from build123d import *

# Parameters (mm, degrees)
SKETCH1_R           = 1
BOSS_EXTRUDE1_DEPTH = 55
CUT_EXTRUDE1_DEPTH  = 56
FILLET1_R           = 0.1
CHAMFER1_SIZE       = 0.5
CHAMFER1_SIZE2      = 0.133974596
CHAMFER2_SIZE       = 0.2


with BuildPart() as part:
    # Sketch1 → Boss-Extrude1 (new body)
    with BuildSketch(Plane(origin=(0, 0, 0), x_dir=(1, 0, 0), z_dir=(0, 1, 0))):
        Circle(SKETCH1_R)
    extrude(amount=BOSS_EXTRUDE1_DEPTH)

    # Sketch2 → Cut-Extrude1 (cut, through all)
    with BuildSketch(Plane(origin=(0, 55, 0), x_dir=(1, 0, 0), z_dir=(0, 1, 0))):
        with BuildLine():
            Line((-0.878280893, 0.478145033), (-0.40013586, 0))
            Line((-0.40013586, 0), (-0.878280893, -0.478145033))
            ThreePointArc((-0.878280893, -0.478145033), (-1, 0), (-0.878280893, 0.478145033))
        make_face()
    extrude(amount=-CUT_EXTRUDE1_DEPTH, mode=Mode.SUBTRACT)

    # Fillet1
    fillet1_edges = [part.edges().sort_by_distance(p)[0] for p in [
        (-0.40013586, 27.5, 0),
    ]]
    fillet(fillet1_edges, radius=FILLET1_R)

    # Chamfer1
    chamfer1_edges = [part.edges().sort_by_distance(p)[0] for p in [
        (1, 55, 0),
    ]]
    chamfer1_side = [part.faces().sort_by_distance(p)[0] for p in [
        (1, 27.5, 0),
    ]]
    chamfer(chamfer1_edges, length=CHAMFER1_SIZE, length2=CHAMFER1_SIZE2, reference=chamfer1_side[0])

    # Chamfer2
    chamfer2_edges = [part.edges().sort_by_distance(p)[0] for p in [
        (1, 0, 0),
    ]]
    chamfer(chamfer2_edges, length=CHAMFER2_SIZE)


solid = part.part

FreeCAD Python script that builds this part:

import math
import FreeCAD as App
import Part
import Sketcher
Q = App.Units.Quantity


def edges_at(feature, points):
    """Names of the edges that pass closest to the given points."""
    edges = feature.Shape.Edges
    near = lambda p: min(range(len(edges)), key=lambda i: edges[i].distToShape(Part.Vertex(*p))[0])
    return sorted({f"Edge{near(p) + 1}" for p in points})

doc = App.newDocument("Part")
body = doc.addObject("PartDesign::Body", "Body")

# Sketch on XZ plane
sketch1 = body.newObject("Sketcher::SketchObject", "Sketch")
sketch1.AttachmentSupport = (doc.getObject("XZ_Plane"), [""])
sketch1.MapMode = "FlatFace"
sketch1.addGeometry(Part.Circle(App.Vector(0, 0, 0), App.Vector(0, 0, 1), 1), False)
sketch1.addConstraint([
    Sketcher.Constraint("Coincident", 0, 3, -1, 1),
    Sketcher.Constraint("Diameter", 0, Q("2 mm")),
])
pad1 = body.newObject("PartDesign::Pad", "Pad")
pad1.Profile = sketch1
pad1.Length = 55
pad1.Reversed = True

# Sketch on XZ plane
sketch2 = body.newObject("Sketcher::SketchObject", "Sketch001")
sketch2.AttachmentSupport = (doc.getObject("XZ_Plane"), [""])
sketch2.MapMode = "FlatFace"
sketch2.AttachmentOffset = App.Placement(App.Vector(0, 0, -55), App.Rotation())
sketch2.addGeometry([
    Part.LineSegment(App.Vector(-0.4, 0, 0), App.Vector(-0.9, -0.5, 0)),
    Part.ArcOfCircle(Part.Circle(App.Vector(0, 0, 0), App.Vector(0, 0, 1), 1), math.radians(151), math.radians(209)),
    Part.LineSegment(App.Vector(-0.9, 0.5, 0), App.Vector(-0.4, 0, 0)),
], False)
sketch2.addConstraint([
    Sketcher.Constraint("Coincident", 0, 2, 1, 2),
    Sketcher.Constraint("Coincident", 1, 1, 2, 1),
    Sketcher.Constraint("Coincident", 2, 2, 0, 1),
    Sketcher.Constraint("Coincident", 1, 3, -1, 1),
    Sketcher.Constraint("PointOnObject", 2, 2, -1),
    Sketcher.Constraint("Perpendicular", 0, 2),
    Sketcher.Constraint("Vertical", 0, 2, 1, 1),
    Sketcher.Constraint("Radius", 1, Q("1 mm")),
    Sketcher.Constraint("Distance", 0, Q("0.676199 mm")),
])
pocket1 = body.newObject("PartDesign::Pocket", "Pocket")
pocket1.Profile = sketch2
pocket1.Type = "ThroughAll"
pocket1.Reversed = True
doc.recompute()

fillet = body.newObject("PartDesign::Fillet", "Fillet")
fillet.Base = (pocket1, edges_at(pocket1, [(-0.4, 27.5, 0)]))
fillet.Radius = 0.1
doc.recompute()

chamfer = body.newObject("PartDesign::Chamfer", "Chamfer")
chamfer.Base = (fillet, edges_at(fillet, [(1, 55, 0)]))
chamfer.ChamferType = "Two distances"
chamfer.Size = 0.5
chamfer.Size2 = 0.133975
doc.recompute()

chamfer2 = body.newObject("PartDesign::Chamfer", "Chamfer001")
chamfer2.Base = (chamfer, edges_at(chamfer, [(1, 0, 0)]))
chamfer2.Size = 0.2

doc.recompute()
